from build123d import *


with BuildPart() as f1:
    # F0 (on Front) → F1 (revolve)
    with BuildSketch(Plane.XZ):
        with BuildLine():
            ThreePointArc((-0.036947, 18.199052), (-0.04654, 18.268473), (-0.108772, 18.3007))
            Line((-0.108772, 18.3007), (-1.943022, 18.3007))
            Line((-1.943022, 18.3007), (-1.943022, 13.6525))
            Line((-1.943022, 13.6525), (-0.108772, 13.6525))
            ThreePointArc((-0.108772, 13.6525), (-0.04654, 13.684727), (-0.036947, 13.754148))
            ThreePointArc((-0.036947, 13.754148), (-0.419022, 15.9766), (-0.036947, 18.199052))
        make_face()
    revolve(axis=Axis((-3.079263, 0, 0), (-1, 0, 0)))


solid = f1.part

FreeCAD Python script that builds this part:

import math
import FreeCAD as App
import Part
import Sketcher
Q = App.Units.Quantity

doc = App.newDocument("Part")
body = doc.addObject("PartDesign::Body", "Body")

# Sketch on XZ plane
sketch1 = body.newObject("Sketcher::SketchObject", "Sketch")
sketch1.AttachmentSupport = (doc.getObject("XZ_Plane"), [""])
sketch1.MapMode = "FlatFace"
sketch1.addGeometry([
    Part.ArcOfCircle(Part.Circle(App.Vector(-0.11, 18.22, 0), App.Vector(0, 0, 1), 0.08), math.radians(-20), math.radians(90)),  # 0
    Part.LineSegment(App.Vector(-0.11, 18.3, 0), App.Vector(-1.94, 18.3, 0)),  # 1
    Part.LineSegment(App.Vector(-1.94, 18.3, 0), App.Vector(-1.94, 13.65, 0)),  # 2
    Part.LineSegment(App.Vector(-1.94, 13.65, 0), App.Vector(-0.11, 13.65, 0)),  # 3
    Part.ArcOfCircle(Part.Circle(App.Vector(-0.11, 13.73, 0), App.Vector(0, 0, 1), 0.08), math.radians(-90), math.radians(20)),  # 4
    Part.ArcOfCircle(Part.Circle(App.Vector(6.24, 15.98, 0), App.Vector(0, 0, 1), 6.65), math.radians(160), math.radians(200)),  # 5
], False)
sketch1.addConstraint([
    Sketcher.Constraint("Tangent", 0, 2, 1, 1),
    Sketcher.Constraint("Coincident", 1, 2, 2, 1),
    Sketcher.Constraint("Coincident", 2, 2, 3, 1),
    Sketcher.Constraint("Tangent", 3, 2, 4, 1),
    Sketcher.Constraint("Coincident", 4, 2, 5, 2),
    Sketcher.Constraint("Coincident", 5, 1, 0, 1),
    Sketcher.Constraint("Horizontal", 1),
    Sketcher.Constraint("Vertical", 2),
    Sketcher.Constraint("Horizontal", 3),
    Sketcher.Constraint("Equal", 0, 4),
    Sketcher.Constraint("Vertical", 0, 3, 4, 3),
    Sketcher.Constraint("Vertical", 4, 2, 5, 1),
    Sketcher.Constraint("Radius", 0, Q("0.003 in")),
    Sketcher.Constraint("DistanceY", 2, 2, 2, 1, Q("0.183 in")),
    Sketcher.Constraint("DistanceY", -1, 1, 5, 3, Q("0.629 in")),
    Sketcher.Constraint("Radius", 5, 6.654811),
    Sketcher.Constraint("DistanceX", 1, 2, 1, 1, 1.83425),
    Sketcher.Constraint("DistanceX", 0, 3, -1, 1, 0.108772),
    Sketcher.Constraint("DistanceY", -1, 1, 4, 2, 13.754148),
])
revolution = body.newObject("PartDesign::Revolution", "Revolution")
revolution.Profile = sketch1
revolution.ReferenceAxis = (sketch1, ["H_Axis"])
revolution.Angle = 360

doc.recompute()
